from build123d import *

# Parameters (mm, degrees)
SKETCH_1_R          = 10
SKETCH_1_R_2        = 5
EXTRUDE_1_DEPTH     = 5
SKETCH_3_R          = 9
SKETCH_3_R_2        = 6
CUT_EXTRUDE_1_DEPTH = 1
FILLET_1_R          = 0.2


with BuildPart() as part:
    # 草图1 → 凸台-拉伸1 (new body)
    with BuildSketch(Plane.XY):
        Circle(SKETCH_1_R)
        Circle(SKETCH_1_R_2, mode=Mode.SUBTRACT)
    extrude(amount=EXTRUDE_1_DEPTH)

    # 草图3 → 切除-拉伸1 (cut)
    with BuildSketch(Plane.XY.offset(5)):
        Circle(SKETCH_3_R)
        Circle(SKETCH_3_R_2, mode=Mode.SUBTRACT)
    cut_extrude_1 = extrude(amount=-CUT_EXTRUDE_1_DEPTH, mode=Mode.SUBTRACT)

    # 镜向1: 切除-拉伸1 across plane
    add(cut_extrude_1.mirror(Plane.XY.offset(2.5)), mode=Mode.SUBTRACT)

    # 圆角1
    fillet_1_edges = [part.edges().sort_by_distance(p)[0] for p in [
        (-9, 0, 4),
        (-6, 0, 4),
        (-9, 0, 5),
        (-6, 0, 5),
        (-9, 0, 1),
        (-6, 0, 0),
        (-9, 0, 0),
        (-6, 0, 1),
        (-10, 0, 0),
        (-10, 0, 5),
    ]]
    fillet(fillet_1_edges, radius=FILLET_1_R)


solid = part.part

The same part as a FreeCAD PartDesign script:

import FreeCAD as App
import Part
import Sketcher

V = App.Vector


def edges_at(feature, points):
    """Names of the edges that pass closest to the given points."""
    edges = feature.Shape.Edges
    near = lambda p: min(range(len(edges)), key=lambda i: edges[i].distToShape(Part.Vertex(*p))[0])
    return sorted({f"Edge{near(p) + 1}" for p in points})

doc = App.newDocument("Part")
body = doc.addObject("PartDesign::Body", "Body")

sketch1 = body.newObject("Sketcher::SketchObject", "Sketch")
sketch1.AttachmentSupport = (doc.getObject("XY_Plane"), [""])
sketch1.MapMode = "FlatFace"
sketch1.addGeometry([
    Part.Circle(V(0, 0, 0), V(0, 0, 1), 10),
    Part.Circle(V(0, 0, 0), V(0, 0, 1), 5),
], False)
sketch1.addConstraint([
    Sketcher.Constraint("Coincident", 0, 3, -1, 1),
    Sketcher.Constraint("Coincident", 1, 3, -1, 1),
    Sketcher.Constraint("Diameter", 0, 20.0),
    Sketcher.Constraint("Diameter", 1, 10.0),
])
pad1 = body.newObject("PartDesign::Pad", "Pad")
pad1.Profile = sketch1
pad1.Length = 5

sketch2 = body.newObject("Sketcher::SketchObject", "Sketch001")
sketch2.AttachmentSupport = (doc.getObject("XY_Plane"), [""])
sketch2.MapMode = "FlatFace"
sketch2.AttachmentOffset = App.Placement(V(0, 0, 5), App.Rotation())
sketch2.addGeometry([
    Part.Circle(V(0, 0, 0), V(0, 0, 1), 9),
    Part.Circle(V(0, 0, 0), V(0, 0, 1), 6),
], False)
sketch2.addConstraint([
    Sketcher.Constraint("Coincident", 0, 3, -1, 1),
    Sketcher.Constraint("Coincident", 1, 3, -1, 1),
    Sketcher.Constraint("Diameter", 0, 18.0),
    Sketcher.Constraint("Diameter", 1, 12.0),
])
pocket1 = body.newObject("PartDesign::Pocket", "Pocket")
pocket1.Profile = sketch2
pocket1.Length = 1
doc.recompute()

datumplane = body.newObject("PartDesign::Plane", "DatumPlane")
datumplane.AttachmentSupport = (doc.getObject("XY_Plane"), [""])
datumplane.MapMode = "FlatFace"
datumplane.AttachmentOffset = App.Placement(V(0, 0, 2.5), App.Rotation())
mirrored = body.newObject("PartDesign::Mirrored", "Mirrored")
mirrored.Originals = [pocket1]
mirrored.MirrorPlane = (datumplane, [""])
body.Tip = mirrored
doc.recompute()

fillet = body.newObject("PartDesign::Fillet", "Fillet")
fillet.Base = (mirrored, edges_at(mirrored, [
    (-9, 0, 4),
    (-6, 0, 4),
    (-9, 0, 5),
    (-6, 0, 5),
    (-9, 0, 1),
    (-6, 0, 0),
    (-9, 0, 0),
    (-6, 0, 1),
    (-10, 0, 0),
    (-10, 0, 5),
]))
fillet.Radius = 0.2

doc.recompute()
